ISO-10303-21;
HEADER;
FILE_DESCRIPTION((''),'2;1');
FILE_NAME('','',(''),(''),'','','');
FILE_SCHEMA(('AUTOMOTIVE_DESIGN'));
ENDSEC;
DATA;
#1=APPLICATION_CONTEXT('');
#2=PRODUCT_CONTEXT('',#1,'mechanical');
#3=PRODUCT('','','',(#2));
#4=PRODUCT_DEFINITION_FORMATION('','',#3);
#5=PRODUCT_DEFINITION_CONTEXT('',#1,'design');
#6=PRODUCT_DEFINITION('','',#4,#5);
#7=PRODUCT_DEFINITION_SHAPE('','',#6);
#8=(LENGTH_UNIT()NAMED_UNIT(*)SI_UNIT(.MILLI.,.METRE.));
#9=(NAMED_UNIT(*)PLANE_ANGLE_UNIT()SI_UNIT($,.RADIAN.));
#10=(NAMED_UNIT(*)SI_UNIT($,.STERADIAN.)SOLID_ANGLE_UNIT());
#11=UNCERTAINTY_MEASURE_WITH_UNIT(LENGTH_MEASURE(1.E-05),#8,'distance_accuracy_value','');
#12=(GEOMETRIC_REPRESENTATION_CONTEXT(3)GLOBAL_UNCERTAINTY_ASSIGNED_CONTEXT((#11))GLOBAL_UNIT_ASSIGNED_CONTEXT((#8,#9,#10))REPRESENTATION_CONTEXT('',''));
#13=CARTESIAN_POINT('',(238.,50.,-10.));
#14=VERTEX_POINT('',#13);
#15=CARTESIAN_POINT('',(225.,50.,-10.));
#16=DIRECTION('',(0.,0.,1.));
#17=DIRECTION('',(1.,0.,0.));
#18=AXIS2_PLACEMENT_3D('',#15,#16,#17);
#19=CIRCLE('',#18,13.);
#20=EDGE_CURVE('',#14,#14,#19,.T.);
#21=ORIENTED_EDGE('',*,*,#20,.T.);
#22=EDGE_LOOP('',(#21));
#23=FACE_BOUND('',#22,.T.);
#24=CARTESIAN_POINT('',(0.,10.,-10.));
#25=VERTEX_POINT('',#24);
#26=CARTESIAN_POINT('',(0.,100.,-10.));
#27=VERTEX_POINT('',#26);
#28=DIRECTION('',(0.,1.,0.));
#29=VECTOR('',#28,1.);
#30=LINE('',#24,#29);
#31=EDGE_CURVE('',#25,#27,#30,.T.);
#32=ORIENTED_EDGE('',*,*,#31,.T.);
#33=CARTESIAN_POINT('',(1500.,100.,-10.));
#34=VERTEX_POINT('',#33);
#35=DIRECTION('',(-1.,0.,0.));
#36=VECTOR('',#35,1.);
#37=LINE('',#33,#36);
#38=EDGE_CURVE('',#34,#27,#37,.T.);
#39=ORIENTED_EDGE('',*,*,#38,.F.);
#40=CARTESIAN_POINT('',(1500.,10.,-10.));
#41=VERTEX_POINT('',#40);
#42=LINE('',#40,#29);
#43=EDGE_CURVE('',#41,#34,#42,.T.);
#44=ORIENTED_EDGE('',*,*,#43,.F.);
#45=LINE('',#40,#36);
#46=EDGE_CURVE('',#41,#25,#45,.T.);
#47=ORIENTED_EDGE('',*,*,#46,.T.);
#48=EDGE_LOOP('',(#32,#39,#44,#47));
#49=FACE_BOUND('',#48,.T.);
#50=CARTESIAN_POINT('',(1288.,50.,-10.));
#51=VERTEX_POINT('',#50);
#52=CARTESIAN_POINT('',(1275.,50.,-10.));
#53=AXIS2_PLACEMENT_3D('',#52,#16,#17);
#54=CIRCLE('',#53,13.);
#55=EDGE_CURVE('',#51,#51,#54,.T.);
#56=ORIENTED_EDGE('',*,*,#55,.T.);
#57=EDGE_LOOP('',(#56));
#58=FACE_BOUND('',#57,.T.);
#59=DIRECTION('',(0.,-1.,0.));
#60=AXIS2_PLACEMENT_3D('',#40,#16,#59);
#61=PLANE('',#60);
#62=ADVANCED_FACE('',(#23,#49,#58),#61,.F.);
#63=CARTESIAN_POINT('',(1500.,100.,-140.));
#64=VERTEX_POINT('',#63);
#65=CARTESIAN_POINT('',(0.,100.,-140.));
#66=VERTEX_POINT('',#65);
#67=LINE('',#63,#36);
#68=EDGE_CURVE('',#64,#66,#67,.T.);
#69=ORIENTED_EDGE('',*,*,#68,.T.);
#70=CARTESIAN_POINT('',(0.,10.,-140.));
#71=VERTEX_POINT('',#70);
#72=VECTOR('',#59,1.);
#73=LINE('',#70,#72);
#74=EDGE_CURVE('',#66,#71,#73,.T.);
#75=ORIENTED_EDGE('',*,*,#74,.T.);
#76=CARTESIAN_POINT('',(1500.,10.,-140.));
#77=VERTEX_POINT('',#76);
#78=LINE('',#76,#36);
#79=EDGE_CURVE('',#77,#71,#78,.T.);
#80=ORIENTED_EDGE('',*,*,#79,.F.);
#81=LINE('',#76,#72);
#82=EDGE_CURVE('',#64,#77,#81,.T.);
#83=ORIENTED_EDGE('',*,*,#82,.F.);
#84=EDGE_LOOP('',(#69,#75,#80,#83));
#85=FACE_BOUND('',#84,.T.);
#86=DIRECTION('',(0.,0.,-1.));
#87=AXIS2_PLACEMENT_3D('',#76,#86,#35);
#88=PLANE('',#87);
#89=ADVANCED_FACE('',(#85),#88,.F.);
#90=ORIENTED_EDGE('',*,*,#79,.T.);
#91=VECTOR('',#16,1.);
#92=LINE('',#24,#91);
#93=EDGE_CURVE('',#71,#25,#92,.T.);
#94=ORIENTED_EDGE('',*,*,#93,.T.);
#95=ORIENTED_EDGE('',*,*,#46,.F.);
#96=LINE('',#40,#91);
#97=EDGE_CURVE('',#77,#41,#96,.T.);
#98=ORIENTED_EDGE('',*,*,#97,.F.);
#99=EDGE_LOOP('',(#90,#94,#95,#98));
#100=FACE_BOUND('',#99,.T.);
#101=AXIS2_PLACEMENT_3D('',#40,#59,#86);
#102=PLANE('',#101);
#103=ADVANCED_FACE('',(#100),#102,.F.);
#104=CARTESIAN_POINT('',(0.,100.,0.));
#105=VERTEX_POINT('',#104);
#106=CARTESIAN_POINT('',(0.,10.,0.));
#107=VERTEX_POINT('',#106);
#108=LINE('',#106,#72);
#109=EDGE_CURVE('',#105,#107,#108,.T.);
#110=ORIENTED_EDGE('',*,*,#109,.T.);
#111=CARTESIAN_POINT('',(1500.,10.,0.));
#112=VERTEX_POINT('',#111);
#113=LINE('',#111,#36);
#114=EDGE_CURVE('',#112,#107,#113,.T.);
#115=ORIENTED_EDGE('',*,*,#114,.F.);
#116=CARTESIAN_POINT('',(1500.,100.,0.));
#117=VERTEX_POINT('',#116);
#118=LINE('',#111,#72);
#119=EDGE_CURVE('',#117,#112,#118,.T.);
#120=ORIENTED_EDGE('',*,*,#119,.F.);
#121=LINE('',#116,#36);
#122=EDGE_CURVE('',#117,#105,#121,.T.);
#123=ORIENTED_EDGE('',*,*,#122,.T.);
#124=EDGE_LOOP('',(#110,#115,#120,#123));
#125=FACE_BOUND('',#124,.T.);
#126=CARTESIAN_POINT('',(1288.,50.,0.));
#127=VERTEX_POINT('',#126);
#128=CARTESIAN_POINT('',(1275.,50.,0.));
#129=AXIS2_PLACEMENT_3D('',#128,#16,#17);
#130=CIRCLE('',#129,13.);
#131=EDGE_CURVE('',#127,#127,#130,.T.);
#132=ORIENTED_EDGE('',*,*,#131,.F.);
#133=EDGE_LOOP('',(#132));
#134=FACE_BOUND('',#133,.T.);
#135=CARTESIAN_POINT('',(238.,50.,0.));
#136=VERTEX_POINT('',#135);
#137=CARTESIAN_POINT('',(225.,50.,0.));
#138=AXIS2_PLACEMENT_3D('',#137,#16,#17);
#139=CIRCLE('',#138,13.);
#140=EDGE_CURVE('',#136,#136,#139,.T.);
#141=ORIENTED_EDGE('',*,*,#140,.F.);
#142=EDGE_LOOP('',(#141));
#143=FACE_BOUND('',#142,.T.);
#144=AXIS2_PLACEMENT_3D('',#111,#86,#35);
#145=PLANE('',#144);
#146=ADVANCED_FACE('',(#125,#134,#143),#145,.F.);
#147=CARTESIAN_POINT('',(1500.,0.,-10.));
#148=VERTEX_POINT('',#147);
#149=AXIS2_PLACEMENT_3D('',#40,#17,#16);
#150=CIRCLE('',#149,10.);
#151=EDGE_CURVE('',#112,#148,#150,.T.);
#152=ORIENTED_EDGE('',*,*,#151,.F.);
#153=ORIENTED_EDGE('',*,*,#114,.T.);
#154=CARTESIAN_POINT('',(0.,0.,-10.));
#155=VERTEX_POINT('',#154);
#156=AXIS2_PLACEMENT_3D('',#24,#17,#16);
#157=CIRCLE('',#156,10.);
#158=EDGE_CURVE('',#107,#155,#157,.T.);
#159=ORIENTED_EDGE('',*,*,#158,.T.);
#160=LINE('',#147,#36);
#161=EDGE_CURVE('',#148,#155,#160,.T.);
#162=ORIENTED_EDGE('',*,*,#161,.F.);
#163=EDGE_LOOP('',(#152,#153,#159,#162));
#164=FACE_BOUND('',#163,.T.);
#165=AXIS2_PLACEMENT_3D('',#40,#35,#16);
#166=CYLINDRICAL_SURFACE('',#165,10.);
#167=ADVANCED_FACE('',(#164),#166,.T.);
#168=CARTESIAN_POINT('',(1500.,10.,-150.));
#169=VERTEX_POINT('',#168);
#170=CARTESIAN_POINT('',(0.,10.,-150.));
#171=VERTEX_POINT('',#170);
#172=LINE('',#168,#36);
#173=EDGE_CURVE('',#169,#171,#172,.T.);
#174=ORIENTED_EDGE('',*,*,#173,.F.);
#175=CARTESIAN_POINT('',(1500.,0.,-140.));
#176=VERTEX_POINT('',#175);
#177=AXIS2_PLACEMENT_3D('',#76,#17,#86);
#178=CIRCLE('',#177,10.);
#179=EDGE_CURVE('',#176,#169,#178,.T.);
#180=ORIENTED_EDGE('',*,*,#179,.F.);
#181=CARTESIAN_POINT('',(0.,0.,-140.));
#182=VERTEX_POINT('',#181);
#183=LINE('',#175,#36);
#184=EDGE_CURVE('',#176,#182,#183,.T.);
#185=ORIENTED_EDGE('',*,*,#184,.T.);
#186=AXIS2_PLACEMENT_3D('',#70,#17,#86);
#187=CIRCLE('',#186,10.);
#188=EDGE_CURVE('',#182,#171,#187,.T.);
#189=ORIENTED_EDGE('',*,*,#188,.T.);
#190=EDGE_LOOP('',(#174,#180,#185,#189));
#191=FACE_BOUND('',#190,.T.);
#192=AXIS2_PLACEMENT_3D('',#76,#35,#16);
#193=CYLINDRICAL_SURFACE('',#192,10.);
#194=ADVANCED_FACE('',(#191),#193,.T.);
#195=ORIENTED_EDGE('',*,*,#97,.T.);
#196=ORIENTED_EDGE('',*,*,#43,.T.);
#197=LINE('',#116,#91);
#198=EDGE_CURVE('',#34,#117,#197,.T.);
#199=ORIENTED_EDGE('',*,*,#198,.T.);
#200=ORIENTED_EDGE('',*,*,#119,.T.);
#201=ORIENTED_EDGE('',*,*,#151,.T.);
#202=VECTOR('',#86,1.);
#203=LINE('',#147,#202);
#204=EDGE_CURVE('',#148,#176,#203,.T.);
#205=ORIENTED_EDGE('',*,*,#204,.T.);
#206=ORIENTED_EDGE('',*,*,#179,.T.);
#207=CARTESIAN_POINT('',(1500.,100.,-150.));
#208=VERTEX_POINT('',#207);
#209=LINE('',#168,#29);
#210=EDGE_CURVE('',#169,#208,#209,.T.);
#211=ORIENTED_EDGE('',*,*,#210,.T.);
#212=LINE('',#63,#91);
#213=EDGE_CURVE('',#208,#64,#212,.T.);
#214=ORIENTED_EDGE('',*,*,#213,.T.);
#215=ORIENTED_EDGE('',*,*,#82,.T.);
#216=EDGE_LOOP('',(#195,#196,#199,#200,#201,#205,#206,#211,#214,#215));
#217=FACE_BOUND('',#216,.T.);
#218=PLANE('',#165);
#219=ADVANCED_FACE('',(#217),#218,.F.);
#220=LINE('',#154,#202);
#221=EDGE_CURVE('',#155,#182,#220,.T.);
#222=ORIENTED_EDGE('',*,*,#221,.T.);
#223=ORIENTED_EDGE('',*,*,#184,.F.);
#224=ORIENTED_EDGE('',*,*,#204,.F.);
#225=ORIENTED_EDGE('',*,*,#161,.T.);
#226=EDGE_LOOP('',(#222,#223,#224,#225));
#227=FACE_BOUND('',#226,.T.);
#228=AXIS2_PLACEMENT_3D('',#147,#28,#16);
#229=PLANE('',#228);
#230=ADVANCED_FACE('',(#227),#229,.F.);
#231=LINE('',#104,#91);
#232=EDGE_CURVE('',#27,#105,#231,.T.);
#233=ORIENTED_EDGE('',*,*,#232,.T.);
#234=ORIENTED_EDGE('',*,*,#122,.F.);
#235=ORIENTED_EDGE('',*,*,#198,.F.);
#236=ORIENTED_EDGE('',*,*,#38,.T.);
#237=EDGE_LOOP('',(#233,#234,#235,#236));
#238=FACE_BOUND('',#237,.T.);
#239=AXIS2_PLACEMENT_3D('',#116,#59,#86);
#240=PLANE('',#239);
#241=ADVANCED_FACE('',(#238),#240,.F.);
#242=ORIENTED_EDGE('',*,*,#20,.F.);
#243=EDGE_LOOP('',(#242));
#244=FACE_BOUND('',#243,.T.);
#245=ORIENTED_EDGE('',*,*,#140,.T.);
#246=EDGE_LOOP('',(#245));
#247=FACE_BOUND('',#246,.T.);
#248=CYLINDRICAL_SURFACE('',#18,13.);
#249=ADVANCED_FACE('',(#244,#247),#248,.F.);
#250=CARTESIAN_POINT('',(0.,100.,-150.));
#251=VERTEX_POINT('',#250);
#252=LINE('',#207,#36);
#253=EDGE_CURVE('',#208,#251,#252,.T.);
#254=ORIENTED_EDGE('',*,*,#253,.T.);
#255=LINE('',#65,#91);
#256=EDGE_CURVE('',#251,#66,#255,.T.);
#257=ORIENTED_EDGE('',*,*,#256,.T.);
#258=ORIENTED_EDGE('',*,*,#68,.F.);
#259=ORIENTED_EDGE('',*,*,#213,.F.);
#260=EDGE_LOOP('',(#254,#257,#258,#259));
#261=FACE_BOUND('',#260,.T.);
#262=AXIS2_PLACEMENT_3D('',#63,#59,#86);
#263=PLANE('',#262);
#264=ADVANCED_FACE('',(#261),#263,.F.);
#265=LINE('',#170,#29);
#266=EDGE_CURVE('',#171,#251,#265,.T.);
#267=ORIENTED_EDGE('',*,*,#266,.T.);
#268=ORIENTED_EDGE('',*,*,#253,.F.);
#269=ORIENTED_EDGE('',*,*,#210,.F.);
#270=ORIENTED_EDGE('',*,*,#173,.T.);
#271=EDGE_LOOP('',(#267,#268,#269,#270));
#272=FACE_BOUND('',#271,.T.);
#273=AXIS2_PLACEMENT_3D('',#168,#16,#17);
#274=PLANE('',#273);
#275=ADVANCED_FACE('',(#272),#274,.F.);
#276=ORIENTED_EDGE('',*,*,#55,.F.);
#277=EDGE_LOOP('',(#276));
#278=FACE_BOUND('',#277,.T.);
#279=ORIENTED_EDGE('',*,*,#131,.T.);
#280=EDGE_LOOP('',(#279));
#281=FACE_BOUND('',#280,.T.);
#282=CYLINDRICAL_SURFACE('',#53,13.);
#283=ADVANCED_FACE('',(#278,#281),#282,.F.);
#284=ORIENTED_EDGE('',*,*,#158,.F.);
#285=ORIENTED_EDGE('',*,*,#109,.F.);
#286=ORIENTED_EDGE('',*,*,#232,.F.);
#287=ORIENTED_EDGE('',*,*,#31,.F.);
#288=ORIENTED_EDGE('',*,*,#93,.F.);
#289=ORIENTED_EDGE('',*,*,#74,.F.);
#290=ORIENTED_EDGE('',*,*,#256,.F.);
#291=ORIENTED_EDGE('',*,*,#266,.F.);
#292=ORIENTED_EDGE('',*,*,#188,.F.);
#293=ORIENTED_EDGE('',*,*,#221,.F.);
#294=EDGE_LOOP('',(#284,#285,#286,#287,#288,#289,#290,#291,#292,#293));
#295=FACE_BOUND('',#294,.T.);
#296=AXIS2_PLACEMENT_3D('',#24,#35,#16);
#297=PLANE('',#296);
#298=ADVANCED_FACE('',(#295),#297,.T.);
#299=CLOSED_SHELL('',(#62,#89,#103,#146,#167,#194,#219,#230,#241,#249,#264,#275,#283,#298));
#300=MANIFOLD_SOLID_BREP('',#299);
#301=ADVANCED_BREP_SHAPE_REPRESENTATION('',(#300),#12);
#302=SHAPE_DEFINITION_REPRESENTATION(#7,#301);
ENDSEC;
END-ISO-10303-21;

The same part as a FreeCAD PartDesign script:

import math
import FreeCAD as App
import Part
import Sketcher

V = App.Vector

doc = App.newDocument("Part")
body = doc.addObject("PartDesign::Body", "Body")

# Sketch on YZ plane
sketch1 = body.newObject("Sketcher::SketchObject", "Sketch")
sketch1.AttachmentSupport = (doc.getObject("YZ_Plane"), [""])
sketch1.MapMode = "FlatFace"
sketch1.addGeometry([
    Part.LineSegment(V(100, -140, 0), V(10, -140, 0)),  # 0
    Part.LineSegment(V(10, -140, 0), V(10, -10, 0)),  # 1
    Part.LineSegment(V(10, -10, 0), V(100, -10, 0)),  # 2
    Part.LineSegment(V(100, -10, 0), V(100, 0, 0)),  # 3
    Part.LineSegment(V(100, 0, 0), V(10, 0, 0)),  # 4
    Part.ArcOfCircle(Part.Circle(V(10, -10, 0), V(0, 0, 1), 10), math.radians(90), math.radians(180)),  # 5
    Part.LineSegment(V(0, -10, 0), V(0, -140, 0)),  # 6
    Part.ArcOfCircle(Part.Circle(V(10, -140, 0), V(0, 0, 1), 10), math.radians(180), math.radians(270)),  # 7
    Part.LineSegment(V(10, -150, 0), V(100, -150, 0)),  # 8
    Part.LineSegment(V(100, -150, 0), V(100, -140, 0)),  # 9
], False)
sketch1.addConstraint([
    Sketcher.Constraint("Coincident", 0, 2, 1, 1),
    Sketcher.Constraint("Coincident", 1, 2, 2, 1),
    Sketcher.Constraint("Coincident", 2, 2, 3, 1),
    Sketcher.Constraint("Coincident", 3, 2, 4, 1),
    Sketcher.Constraint("Tangent", 4, 2, 5, 1),
    Sketcher.Constraint("Tangent", 5, 2, 6, 1),
    Sketcher.Constraint("Tangent", 6, 2, 7, 1),
    Sketcher.Constraint("Tangent", 7, 2, 8, 1),
    Sketcher.Constraint("Coincident", 8, 2, 9, 1),
    Sketcher.Constraint("Coincident", 9, 2, 0, 1),
    Sketcher.Constraint("Horizontal", 0),
    Sketcher.Constraint("Vertical", 1),
    Sketcher.Constraint("Horizontal", 2),
    Sketcher.Constraint("Vertical", 3),
    Sketcher.Constraint("Horizontal", 4),
    Sketcher.Constraint("Vertical", 6),
    Sketcher.Constraint("Horizontal", 8),
    Sketcher.Constraint("Vertical", 9),
    Sketcher.Constraint("Coincident", 0, 2, 7, 3),
    Sketcher.Constraint("Coincident", 1, 2, 5, 3),
    Sketcher.Constraint("PointOnObject", 3, 2, -1),
    Sketcher.Constraint("PointOnObject", 5, 2, -2),
    Sketcher.Constraint("Vertical", 3, 2, 8, 2),
    Sketcher.Constraint("Radius", 5, 10.0),
    Sketcher.Constraint("DistanceX", 0, 2, 0, 1, 90.0),
    Sketcher.Constraint("DistanceY", 1, 1, 1, 2, 130.0),
])
pad1 = body.newObject("PartDesign::Pad", "Pad")
pad1.Profile = sketch1
pad1.Length = 1500

# Sketch on XY plane
sketch2 = body.newObject("Sketcher::SketchObject", "Sketch001")
sketch2.AttachmentSupport = (doc.getObject("XY_Plane"), [""])
sketch2.MapMode = "FlatFace"
sketch2.addGeometry([
    Part.Circle(V(225, 50, 0), V(0, 0, 1), 13),
    Part.Circle(V(1275, 50, 0), V(0, 0, 1), 13),
], False)
sketch2.addConstraint([
    Sketcher.Constraint("Equal", 0, 1),
    Sketcher.Constraint("Horizontal", 0, 3, 1, 3),
    Sketcher.Constraint("Diameter", 0, 26.0),
    Sketcher.Constraint("DistanceX", -1, 1, 0, 3, 225.0),
    Sketcher.Constraint("DistanceY", -1, 1, 0, 3, 50.0),
    Sketcher.Constraint("DistanceX", -1, 1, 1, 3, 1275.0),
])
pocket1 = body.newObject("PartDesign::Pocket", "Pocket")
pocket1.Profile = sketch2
pocket1.Length = 10

doc.recompute()
